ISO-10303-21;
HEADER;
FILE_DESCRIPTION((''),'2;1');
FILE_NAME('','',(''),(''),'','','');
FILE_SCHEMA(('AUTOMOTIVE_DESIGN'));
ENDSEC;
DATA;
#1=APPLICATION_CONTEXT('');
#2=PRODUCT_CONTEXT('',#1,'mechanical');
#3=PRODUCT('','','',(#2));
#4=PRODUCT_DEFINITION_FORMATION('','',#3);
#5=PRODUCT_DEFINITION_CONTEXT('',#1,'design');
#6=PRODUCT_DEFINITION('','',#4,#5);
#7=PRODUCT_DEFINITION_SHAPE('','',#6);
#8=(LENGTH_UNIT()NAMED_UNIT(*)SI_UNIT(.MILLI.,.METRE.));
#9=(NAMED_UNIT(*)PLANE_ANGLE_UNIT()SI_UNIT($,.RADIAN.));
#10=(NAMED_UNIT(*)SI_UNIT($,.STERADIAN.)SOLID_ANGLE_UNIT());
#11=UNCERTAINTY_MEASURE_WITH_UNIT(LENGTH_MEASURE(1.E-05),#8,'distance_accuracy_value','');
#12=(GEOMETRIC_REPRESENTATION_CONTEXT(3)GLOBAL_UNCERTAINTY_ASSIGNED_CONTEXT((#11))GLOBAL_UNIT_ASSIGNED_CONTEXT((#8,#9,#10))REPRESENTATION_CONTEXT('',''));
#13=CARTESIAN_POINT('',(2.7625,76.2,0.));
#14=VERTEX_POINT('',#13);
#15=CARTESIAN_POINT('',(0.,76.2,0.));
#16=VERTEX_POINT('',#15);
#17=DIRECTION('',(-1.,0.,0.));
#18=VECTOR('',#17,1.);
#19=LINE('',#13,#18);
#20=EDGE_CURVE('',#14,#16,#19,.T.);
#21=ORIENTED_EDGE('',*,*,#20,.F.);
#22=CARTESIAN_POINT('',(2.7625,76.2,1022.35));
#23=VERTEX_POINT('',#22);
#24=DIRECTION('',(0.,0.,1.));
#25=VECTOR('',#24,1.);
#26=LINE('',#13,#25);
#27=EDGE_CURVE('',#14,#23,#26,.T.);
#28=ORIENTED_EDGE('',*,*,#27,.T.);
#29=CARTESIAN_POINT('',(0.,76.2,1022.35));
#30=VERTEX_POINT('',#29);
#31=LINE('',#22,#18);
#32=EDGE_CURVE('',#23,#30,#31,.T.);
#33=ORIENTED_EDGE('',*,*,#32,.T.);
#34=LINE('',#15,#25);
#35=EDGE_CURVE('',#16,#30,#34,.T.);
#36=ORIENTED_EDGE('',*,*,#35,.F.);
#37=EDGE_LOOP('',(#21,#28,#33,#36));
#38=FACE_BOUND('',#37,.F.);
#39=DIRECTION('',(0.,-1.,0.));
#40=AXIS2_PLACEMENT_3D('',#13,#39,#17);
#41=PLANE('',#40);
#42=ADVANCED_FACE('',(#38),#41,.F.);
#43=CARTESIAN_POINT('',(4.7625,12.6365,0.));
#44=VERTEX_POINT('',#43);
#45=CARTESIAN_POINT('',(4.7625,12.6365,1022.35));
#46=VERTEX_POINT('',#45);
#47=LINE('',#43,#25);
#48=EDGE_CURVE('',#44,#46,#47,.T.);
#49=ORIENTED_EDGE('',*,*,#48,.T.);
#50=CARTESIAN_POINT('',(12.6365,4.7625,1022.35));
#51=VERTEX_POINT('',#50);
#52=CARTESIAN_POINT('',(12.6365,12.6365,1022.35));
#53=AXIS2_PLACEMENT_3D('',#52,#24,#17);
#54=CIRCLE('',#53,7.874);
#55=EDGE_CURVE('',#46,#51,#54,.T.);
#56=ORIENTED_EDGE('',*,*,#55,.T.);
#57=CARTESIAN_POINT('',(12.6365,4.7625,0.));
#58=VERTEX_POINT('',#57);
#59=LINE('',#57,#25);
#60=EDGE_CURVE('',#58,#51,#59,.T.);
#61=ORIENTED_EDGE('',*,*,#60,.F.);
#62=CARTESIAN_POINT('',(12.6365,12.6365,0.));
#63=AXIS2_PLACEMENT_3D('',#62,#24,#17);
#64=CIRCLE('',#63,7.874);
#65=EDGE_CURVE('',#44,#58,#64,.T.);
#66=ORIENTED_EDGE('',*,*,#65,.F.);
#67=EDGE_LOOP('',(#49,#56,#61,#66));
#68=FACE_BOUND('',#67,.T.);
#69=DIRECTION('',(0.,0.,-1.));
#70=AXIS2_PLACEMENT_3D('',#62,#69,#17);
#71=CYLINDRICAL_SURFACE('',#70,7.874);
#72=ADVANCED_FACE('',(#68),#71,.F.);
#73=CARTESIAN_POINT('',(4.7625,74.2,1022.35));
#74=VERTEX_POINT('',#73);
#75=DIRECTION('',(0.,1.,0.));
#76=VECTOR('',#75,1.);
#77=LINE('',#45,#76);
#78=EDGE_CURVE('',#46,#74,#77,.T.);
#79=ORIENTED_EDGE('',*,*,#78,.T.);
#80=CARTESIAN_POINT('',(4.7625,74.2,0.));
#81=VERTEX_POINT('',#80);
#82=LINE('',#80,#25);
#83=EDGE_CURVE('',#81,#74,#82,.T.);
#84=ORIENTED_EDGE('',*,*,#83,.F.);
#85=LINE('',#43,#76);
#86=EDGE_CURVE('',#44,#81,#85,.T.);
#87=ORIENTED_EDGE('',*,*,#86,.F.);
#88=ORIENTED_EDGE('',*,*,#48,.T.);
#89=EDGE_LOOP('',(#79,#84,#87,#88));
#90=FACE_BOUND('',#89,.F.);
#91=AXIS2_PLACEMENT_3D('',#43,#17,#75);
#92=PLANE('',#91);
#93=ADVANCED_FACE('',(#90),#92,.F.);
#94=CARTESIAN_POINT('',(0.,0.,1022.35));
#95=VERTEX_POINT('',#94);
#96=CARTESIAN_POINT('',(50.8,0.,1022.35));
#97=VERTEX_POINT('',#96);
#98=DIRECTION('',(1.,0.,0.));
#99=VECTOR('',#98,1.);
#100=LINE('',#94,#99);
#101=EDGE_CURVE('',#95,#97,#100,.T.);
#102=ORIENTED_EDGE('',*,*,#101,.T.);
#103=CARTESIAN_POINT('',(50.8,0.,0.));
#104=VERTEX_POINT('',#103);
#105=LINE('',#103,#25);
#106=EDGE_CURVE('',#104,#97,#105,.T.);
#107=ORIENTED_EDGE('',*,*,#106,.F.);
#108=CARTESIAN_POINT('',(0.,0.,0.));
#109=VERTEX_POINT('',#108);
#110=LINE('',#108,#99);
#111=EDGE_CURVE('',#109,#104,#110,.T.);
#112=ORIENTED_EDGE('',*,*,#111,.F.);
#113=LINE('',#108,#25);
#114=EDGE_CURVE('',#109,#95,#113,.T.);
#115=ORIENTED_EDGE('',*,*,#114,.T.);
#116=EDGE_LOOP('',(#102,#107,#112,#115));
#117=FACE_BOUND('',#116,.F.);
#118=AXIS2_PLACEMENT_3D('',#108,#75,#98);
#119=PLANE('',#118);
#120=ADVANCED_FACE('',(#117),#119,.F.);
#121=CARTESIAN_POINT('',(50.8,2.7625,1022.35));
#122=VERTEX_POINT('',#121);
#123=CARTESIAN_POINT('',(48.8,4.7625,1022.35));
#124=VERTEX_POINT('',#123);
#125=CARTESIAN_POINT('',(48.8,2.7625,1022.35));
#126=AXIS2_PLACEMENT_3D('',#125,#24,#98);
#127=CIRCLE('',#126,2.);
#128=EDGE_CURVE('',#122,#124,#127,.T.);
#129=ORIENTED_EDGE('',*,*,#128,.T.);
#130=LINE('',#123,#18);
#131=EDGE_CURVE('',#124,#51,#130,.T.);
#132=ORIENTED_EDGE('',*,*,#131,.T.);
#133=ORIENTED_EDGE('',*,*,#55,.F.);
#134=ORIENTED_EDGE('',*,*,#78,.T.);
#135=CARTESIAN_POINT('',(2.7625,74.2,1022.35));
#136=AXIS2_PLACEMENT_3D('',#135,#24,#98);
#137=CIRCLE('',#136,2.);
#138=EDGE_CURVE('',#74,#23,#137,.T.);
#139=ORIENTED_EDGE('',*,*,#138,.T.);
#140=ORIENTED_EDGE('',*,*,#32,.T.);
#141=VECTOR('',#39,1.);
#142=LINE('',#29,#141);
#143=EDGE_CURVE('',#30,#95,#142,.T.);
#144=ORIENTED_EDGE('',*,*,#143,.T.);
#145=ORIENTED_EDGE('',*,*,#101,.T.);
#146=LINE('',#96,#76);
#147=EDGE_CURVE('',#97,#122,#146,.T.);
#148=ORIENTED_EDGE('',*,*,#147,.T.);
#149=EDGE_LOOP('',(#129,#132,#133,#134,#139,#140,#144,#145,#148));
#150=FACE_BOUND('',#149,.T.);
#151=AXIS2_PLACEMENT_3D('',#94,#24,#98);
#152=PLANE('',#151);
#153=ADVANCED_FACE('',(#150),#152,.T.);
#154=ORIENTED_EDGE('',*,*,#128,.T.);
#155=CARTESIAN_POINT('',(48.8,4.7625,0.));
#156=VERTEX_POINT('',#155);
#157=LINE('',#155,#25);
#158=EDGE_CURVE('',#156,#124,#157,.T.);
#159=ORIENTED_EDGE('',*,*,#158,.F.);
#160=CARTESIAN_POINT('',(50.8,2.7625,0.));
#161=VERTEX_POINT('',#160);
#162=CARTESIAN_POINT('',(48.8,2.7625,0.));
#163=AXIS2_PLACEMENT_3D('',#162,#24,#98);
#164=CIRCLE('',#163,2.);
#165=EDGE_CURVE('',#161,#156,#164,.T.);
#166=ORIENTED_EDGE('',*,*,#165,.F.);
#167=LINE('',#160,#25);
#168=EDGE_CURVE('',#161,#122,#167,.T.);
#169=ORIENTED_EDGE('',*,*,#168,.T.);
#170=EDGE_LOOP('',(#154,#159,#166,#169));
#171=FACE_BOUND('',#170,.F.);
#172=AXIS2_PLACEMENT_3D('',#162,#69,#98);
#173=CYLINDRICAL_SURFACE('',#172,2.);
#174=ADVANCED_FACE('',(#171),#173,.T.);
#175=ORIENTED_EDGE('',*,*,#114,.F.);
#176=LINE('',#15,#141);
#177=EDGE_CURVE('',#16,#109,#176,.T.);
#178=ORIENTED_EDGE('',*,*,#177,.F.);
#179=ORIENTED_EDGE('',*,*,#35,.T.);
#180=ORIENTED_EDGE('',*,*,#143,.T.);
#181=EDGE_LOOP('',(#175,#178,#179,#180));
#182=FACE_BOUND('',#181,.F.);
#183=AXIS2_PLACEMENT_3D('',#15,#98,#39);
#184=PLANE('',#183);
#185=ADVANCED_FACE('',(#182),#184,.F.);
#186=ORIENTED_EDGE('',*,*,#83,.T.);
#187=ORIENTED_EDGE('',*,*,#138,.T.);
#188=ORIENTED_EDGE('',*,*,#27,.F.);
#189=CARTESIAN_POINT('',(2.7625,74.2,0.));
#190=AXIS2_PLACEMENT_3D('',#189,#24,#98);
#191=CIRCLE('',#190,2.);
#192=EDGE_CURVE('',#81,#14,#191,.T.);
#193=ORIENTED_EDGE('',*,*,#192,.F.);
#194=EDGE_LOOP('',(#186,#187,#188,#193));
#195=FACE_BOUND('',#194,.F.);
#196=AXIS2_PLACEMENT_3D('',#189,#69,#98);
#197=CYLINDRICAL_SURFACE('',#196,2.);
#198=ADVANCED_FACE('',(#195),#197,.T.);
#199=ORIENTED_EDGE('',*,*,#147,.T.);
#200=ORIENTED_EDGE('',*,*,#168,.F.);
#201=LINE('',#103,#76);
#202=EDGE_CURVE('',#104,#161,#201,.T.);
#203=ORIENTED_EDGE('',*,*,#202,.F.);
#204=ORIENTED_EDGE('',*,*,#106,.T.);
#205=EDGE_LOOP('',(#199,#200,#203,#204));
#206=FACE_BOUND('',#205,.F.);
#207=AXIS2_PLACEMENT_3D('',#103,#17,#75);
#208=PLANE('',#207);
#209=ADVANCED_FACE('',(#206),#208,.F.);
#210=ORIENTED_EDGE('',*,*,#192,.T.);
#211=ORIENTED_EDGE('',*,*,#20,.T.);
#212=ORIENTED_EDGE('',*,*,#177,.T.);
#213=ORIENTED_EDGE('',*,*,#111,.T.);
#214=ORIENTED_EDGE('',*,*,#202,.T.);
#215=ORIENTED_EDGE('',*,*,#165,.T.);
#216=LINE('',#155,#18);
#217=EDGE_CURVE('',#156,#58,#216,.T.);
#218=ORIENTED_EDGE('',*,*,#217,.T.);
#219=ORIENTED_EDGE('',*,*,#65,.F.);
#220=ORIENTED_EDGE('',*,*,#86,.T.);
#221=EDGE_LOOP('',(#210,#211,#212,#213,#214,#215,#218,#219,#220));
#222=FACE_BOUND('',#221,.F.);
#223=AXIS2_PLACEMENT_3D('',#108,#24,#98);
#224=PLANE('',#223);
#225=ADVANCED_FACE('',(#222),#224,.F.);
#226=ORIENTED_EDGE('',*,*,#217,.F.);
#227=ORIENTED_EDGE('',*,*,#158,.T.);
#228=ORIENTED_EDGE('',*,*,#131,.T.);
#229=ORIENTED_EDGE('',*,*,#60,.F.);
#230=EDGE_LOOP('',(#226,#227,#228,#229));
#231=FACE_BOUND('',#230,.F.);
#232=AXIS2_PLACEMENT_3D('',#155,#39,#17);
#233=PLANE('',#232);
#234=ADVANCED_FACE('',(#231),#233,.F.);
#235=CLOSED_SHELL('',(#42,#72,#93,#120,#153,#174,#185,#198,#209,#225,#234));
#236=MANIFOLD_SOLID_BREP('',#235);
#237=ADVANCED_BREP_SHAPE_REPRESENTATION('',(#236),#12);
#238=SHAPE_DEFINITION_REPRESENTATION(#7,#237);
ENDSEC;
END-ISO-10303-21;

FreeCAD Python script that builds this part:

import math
import FreeCAD as App
import Part
import Sketcher

V = App.Vector
Q = App.Units.Quantity

doc = App.newDocument("Part")
params = doc.addObject("Spreadsheet::Sheet", "Params")
for row, (alias, value) in enumerate([
    ("sketch1_width", "2 in"),
    ("sketch1_height", "3 in"),
    ("sketch1_radius", "0.31 in"),
    ("pad1_length", "40.25 in"),
], start=1):
    params.set(f"A{row}", alias)
    params.set(f"B{row}", "=" + value)
    params.setAlias(f"B{row}", alias)

body = doc.addObject("PartDesign::Body", "Body")

# Sketch on XY plane
sketch1 = body.newObject("Sketcher::SketchObject", "Sketch")
sketch1.AttachmentSupport = (doc.getObject("XY_Plane"), [""])
sketch1.MapMode = "FlatFace"
sketch1.addGeometry([
    Part.LineSegment(V(2.8, 76.2, 0), V(0, 76.2, 0)),  # 0
    Part.LineSegment(V(0, 76.2, 0), V(0, 0, 0)),  # 1
    Part.LineSegment(V(0, 0, 0), V(50.8, 0, 0)),  # 2
    Part.LineSegment(V(50.8, 0, 0), V(50.8, 2.8, 0)),  # 3
    Part.ArcOfCircle(Part.Circle(V(48.8, 2.8, 0), V(0, 0, 1), 2), math.radians(0), math.radians(90)),  # 4
    Part.LineSegment(V(48.8, 4.8, 0), V(12.6, 4.8, 0)),  # 5
    Part.ArcOfCircle(Part.Circle(V(12.6, 12.6, 0), V(0, 0, 1), 7.9), math.radians(180), math.radians(270)),  # 6
    Part.LineSegment(V(4.8, 12.6, 0), V(4.8, 74.2, 0)),  # 7
    Part.ArcOfCircle(Part.Circle(V(2.8, 74.2, 0), V(0, 0, 1), 2), math.radians(0), math.radians(90)),  # 8
], False)
sketch1.addConstraint([
    Sketcher.Constraint("Coincident", 0, 2, 1, 1),
    Sketcher.Constraint("Coincident", 1, 2, 2, 1),
    Sketcher.Constraint("Coincident", 2, 2, 3, 1),
    Sketcher.Constraint("Tangent", 3, 2, 4, 1),
    Sketcher.Constraint("Tangent", 4, 2, 5, 1),
    Sketcher.Constraint("Tangent", 5, 2, 6, 2),
    Sketcher.Constraint("Tangent", 6, 1, 7, 1),
    Sketcher.Constraint("Tangent", 7, 2, 8, 1),
    Sketcher.Constraint("Tangent", 8, 2, 0, 1),
    Sketcher.Constraint("Horizontal", 0),
    Sketcher.Constraint("Vertical", 1),
    Sketcher.Constraint("Horizontal", 2),
    Sketcher.Constraint("Vertical", 3),
    Sketcher.Constraint("Horizontal", 5),
    Sketcher.Constraint("Vertical", 7),
    Sketcher.Constraint("Coincident", 1, 2, -1, 1),
    Sketcher.Constraint("Equal", 4, 8),
    Sketcher.Constraint("Equal", 0, 3),
    Sketcher.Constraint("DistanceX", 2, 1, 2, 2, Q("2 in")),
    Sketcher.Constraint("DistanceY", 1, 2, 1, 1, Q("3 in")),
    Sketcher.Constraint("Radius", 6, Q("0.31 in")),
    Sketcher.Constraint("Radius", 4, Q("2 mm")),
    Sketcher.Constraint("DistanceY", -1, 1, 4, 2, Q("0.1875 in")),
])
sketch1.setExpression("Constraints[18]", "Params.sketch1_width")
sketch1.setExpression("Constraints[19]", "Params.sketch1_height")
sketch1.setExpression("Constraints[20]", "Params.sketch1_radius")
pad1 = body.newObject("PartDesign::Pad", "Pad")
pad1.Profile = sketch1
pad1.setExpression("Length", "Params.pad1_length")

doc.recompute()
